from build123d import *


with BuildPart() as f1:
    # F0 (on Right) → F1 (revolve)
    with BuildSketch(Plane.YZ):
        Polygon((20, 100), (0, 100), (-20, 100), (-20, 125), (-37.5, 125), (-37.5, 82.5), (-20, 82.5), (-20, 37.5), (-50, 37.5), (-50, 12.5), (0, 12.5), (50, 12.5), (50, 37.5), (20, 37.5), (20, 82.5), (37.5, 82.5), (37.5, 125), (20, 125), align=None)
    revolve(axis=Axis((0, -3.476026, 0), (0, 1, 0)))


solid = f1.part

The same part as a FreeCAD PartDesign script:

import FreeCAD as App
import Part
import Sketcher
Q = App.Units.Quantity


def add_polygon(sketch, points):
    """Adds a closed chain of lines whose ends are joined by coincident constraints."""
    first, n = sketch.GeometryCount, len(points)
    for a, b in zip(points, points[1:] + points[:1]):
        sketch.addGeometry(Part.LineSegment(App.Vector(*a, 0), App.Vector(*b, 0)), False)
    for i in range(n):
        sketch.addConstraint(Sketcher.Constraint("Coincident", first + i, 2, first + (i + 1) % n, 1))

doc = App.newDocument("Part")
body = doc.addObject("PartDesign::Body", "Body")

sketch1 = doc.addObject("Sketcher::SketchObject", "Sketch")
body.addObject(sketch1)
sketch1.AttachmentSupport = (doc.YZ_Plane, [""])
sketch1.MapMode = "FlatFace"
add_polygon(sketch1, [(20, 100), (-20, 100), (-20, 125), (-38, 125), (-38, 82), (-20, 82), (-20, 38), (-50, 38), (-50, 12), (50, 12), (50, 38), (20, 38), (20, 82), (38, 82), (38, 125), (20, 125)])
sketch1.addConstraint([
    Sketcher.Constraint("Horizontal", 0),
    Sketcher.Constraint("Vertical", 1),
    Sketcher.Constraint("Horizontal", 2),
    Sketcher.Constraint("Vertical", 3),
    Sketcher.Constraint("Horizontal", 4),
    Sketcher.Constraint("Vertical", 5),
    Sketcher.Constraint("Horizontal", 6),
    Sketcher.Constraint("Vertical", 7),
    Sketcher.Constraint("Horizontal", 8),
    Sketcher.Constraint("Vertical", 9),
    Sketcher.Constraint("Horizontal", 10),
    Sketcher.Constraint("Vertical", 11),
    Sketcher.Constraint("Horizontal", 12),
    Sketcher.Constraint("Vertical", 13),
    Sketcher.Constraint("Horizontal", 14),
    Sketcher.Constraint("Vertical", 15),
    Sketcher.Constraint("Symmetric", 6, 2, 9, 2, -2),
    Sketcher.Constraint("Symmetric", 4, 2, 11, 2, -2),
    Sketcher.Constraint("Symmetric", 2, 2, 13, 2, -2),
    Sketcher.Constraint("Vertical", 1, 2, 4, 2),
    Sketcher.Constraint("Vertical", 11, 2, 14, 2),
    Sketcher.Constraint("Equal", 1, 7),
    Sketcher.Constraint("DistanceX", 0, 2, 0, 1, Q("40 mm")),
    Sketcher.Constraint("DistanceX", 6, 2, 6, 1, Q("30 mm")),
    Sketcher.Constraint("DistanceY", 1, 1, 1, 2, Q("25 mm")),
    Sketcher.Constraint("DistanceY", 5, 2, 5, 1, Q("45 mm")),
    Sketcher.Constraint("DistanceX", 2, 2, 2, 1, Q("17.5 mm")),
    Sketcher.Constraint("DistanceY", 3, 2, 3, 1, Q("42.5 mm")),
    Sketcher.Constraint("DistanceY", -1, 1, 0, 2, Q("100 mm")),
])
revolution = doc.addObject("PartDesign::Revolution", "Revolution")
body.addObject(revolution)
revolution.Profile = sketch1
revolution.ReferenceAxis = (sketch1, ["H_Axis"])
revolution.Angle = 360

doc.recompute()
